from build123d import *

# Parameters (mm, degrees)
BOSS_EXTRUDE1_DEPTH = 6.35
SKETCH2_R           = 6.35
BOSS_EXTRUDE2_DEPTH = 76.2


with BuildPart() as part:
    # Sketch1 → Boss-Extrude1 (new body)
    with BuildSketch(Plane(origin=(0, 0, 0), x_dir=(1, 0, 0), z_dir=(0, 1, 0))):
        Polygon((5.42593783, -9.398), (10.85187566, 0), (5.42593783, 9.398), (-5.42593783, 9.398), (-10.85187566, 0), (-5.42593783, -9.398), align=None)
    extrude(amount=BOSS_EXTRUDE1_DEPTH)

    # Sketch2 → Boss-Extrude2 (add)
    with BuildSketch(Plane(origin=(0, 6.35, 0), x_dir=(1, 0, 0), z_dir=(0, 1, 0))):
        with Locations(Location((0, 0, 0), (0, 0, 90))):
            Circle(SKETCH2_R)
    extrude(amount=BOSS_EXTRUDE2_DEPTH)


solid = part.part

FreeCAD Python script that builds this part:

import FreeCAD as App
import Part
import Sketcher
from FreeCAD import Vector
Q = App.Units.Quantity

doc = App.newDocument("Part")
params = doc.addObject("Spreadsheet::Sheet", "Params")
for row, (alias, value) in enumerate([
    ("pad1_length", "0.25 in"),
    ("sketch2_diameter", "0.5 in"),
    ("pad2_length", "3 in"),
], start=1):
    params.set(f"A{row}", alias)
    params.set(f"B{row}", "=" + value)
    params.setAlias(f"B{row}", alias)

body = doc.addObject("PartDesign::Body", "Body")

sketch1 = body.newObject("Sketcher::SketchObject", "Sketch")
sketch1.AttachmentSupport = (doc.getObject("XZ_Plane"), [""])
sketch1.MapMode = "FlatFace"
sketch1.addGeometry(Part.LineSegment(Vector(5, 9, 0), Vector(11, 0, 0)), False)
sketch1.addGeometry(Part.LineSegment(Vector(11, 0, 0), Vector(5, -9, 0)), False)
sketch1.addGeometry(Part.LineSegment(Vector(5, -9, 0), Vector(-5, -9, 0)), False)
sketch1.addGeometry(Part.LineSegment(Vector(-5, -9, 0), Vector(-11, 0, 0)), False)
sketch1.addGeometry(Part.LineSegment(Vector(-11, 0, 0), Vector(-5, 9, 0)), False)
sketch1.addGeometry(Part.LineSegment(Vector(-5, 9, 0), Vector(5, 9, 0)), False)
sketch1.addConstraint(Sketcher.Constraint("Coincident", 0, 2, 1, 1))
sketch1.addConstraint(Sketcher.Constraint("Coincident", 1, 2, 2, 1))
sketch1.addConstraint(Sketcher.Constraint("Coincident", 2, 2, 3, 1))
sketch1.addConstraint(Sketcher.Constraint("Coincident", 3, 2, 4, 1))
sketch1.addConstraint(Sketcher.Constraint("Coincident", 4, 2, 5, 1))
sketch1.addConstraint(Sketcher.Constraint("Coincident", 5, 2, 0, 1))
sketch1.addConstraint(Sketcher.Constraint("Horizontal", 2))
sketch1.addConstraint(Sketcher.Constraint("Horizontal", 5))
sketch1.addConstraint(Sketcher.Constraint("Symmetric", 0, 2, 3, 2, -1, 1))
sketch1.addConstraint(Sketcher.Constraint("Symmetric", 1, 2, 4, 2, -1, 1))
sketch1.addConstraint(Sketcher.Constraint("PointOnObject", 0, 2, -1))
sketch1.addConstraint(Sketcher.Constraint("Parallel", 0, 3))
sketch1.addConstraint(Sketcher.Constraint("Vertical", 2, 2, 4, 2))
sketch1.addConstraint(Sketcher.Constraint("Angle", 0, Q("-60 deg")))
sketch1.addConstraint(Sketcher.Constraint("DistanceY", 1, 2, -1, 1, Q("0.37 in")))
sketch1.addConstraint(Sketcher.Constraint("DistanceX", 2, 2, 2, 1, Q("10.851876 mm")))
pad1 = body.newObject("PartDesign::Pad", "Pad")
pad1.Profile = sketch1
pad1.setExpression("Length", "Params.pad1_length")
pad1.Reversed = True

sketch2 = body.newObject("Sketcher::SketchObject", "Sketch001")
sketch2.AttachmentSupport = (doc.getObject("XZ_Plane"), [""])
sketch2.MapMode = "FlatFace"
sketch2.AttachmentOffset = App.Placement(Vector(0, 0, -0.25 * 25.4), App.Rotation())
sketch2.addGeometry(Part.Circle(Vector(0, 0, 0), Vector(0, 0, 1), 6), False)
sketch2.addConstraint(Sketcher.Constraint("Coincident", 0, 3, -1, 1))
sketch2.addConstraint(Sketcher.Constraint("Diameter", 0, Q("0.5 in")))
sketch2.setExpression("Constraints[1]", "Params.sketch2_diameter")
pad2 = body.newObject("PartDesign::Pad", "Pad001")
pad2.Profile = sketch2
pad2.setExpression("Length", "Params.pad2_length")
pad2.Reversed = True

doc.recompute()
